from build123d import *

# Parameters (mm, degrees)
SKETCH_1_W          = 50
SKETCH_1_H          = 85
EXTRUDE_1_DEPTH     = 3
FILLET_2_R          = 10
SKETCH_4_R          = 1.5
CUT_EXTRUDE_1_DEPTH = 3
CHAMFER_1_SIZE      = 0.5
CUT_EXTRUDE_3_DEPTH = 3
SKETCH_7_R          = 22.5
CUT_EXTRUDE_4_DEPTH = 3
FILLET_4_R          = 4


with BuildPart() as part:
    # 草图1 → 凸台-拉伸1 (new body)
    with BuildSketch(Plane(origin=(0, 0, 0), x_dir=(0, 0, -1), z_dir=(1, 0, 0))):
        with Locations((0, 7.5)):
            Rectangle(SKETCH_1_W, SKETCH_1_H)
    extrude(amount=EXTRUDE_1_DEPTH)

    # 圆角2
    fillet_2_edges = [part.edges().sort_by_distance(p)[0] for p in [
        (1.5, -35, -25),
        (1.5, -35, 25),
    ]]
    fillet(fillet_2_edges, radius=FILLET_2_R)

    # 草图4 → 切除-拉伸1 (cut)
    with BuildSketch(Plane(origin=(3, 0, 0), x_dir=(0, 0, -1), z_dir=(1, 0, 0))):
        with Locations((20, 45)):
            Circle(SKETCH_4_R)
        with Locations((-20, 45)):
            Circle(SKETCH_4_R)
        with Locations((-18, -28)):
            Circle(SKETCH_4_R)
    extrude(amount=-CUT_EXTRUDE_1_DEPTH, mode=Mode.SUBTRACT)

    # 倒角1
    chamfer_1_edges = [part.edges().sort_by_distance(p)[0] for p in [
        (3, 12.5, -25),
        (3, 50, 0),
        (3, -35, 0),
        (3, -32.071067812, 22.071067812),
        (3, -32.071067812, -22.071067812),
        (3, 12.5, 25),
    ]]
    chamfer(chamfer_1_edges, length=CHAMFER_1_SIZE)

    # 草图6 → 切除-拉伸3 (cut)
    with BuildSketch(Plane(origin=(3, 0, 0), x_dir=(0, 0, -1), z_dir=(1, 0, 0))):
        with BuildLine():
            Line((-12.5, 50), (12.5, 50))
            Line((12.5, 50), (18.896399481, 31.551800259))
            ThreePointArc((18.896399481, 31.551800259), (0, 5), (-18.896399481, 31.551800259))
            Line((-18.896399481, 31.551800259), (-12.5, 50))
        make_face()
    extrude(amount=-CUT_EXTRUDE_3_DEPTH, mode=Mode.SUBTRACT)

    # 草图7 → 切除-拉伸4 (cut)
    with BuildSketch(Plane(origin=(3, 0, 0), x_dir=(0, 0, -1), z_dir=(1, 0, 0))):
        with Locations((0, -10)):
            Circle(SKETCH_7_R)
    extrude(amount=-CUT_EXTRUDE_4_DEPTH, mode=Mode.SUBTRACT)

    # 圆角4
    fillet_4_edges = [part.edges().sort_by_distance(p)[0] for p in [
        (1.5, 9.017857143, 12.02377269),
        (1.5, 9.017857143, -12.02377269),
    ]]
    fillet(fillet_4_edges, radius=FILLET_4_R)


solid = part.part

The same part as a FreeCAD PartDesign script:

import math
import FreeCAD as App
import Part
import Sketcher
from FreeCAD import Vector


def edges_at(feature, points):
    """Names of the edges that pass closest to the given points."""
    edges = feature.Shape.Edges
    near = lambda p: min(range(len(edges)), key=lambda i: edges[i].distToShape(Part.Vertex(*p))[0])
    return sorted({f"Edge{near(p) + 1}" for p in points})


def add_polygon(sketch, points):
    """Adds a closed chain of lines whose ends are joined by coincident constraints."""
    first, n = sketch.GeometryCount, len(points)
    for a, b in zip(points, points[1:] + points[:1]):
        sketch.addGeometry(Part.LineSegment(App.Vector(*a, 0), App.Vector(*b, 0)), False)
    for i in range(n):
        sketch.addConstraint(Sketcher.Constraint("Coincident", first + i, 2, first + (i + 1) % n, 1))

doc = App.newDocument("Part")
body = doc.addObject("PartDesign::Body", "Body")

sketch1 = body.newObject("Sketcher::SketchObject", "Sketch")
sketch1.AttachmentSupport = (doc.getObject("YZ_Plane"), [""])
sketch1.MapMode = "FlatFace"
add_polygon(sketch1, [(50, 25), (-35, 25), (-35, -25), (50, -25)])
sketch1.addConstraint(Sketcher.Constraint("Horizontal", 0))
sketch1.addConstraint(Sketcher.Constraint("Vertical", 1))
sketch1.addConstraint(Sketcher.Constraint("Horizontal", 2))
sketch1.addConstraint(Sketcher.Constraint("Vertical", 3))
sketch1.addConstraint(Sketcher.Constraint("DistanceX", 0, 2, 0, 1, 85.0))
sketch1.addConstraint(Sketcher.Constraint("DistanceY", 1, 2, 1, 1, 50.0))
sketch1.addConstraint(Sketcher.Constraint("DistanceX", 0, 2, -1, 1, 35.0))
sketch1.addConstraint(Sketcher.Constraint("DistanceY", -1, 1, 0, 2, 25.0))
pad1 = body.newObject("PartDesign::Pad", "Pad")
pad1.Profile = sketch1
pad1.Length = 3
doc.recompute()

fillet = body.newObject("PartDesign::Fillet", "Fillet")
fillet.Base = (pad1, edges_at(pad1, [(1.5, -35, -25), (1.5, -35, 25)]))
fillet.Radius = 10

sketch2 = body.newObject("Sketcher::SketchObject", "Sketch001")
sketch2.AttachmentSupport = (doc.getObject("YZ_Plane"), [""])
sketch2.MapMode = "FlatFace"
sketch2.AttachmentOffset = App.Placement(Vector(0, 0, 3), App.Rotation())
sketch2.addGeometry(Part.Circle(Vector(45, -20, 0), Vector(0, 0, 1), 1.5), False)
sketch2.addGeometry(Part.Circle(Vector(45, 20, 0), Vector(0, 0, 1), 1.5), False)
sketch2.addGeometry(Part.Circle(Vector(-28, 18, 0), Vector(0, 0, 1), 1.5), False)
sketch2.addConstraint(Sketcher.Constraint("Equal", 0, 1))
sketch2.addConstraint(Sketcher.Constraint("Equal", 1, 2))
sketch2.addConstraint(Sketcher.Constraint("Symmetric", 0, 3, 1, 3, -1))
sketch2.addConstraint(Sketcher.Constraint("Diameter", 0, 3.0))
sketch2.addConstraint(Sketcher.Constraint("DistanceX", -1, 1, 0, 3, 45.0))
sketch2.addConstraint(Sketcher.Constraint("DistanceY", 0, 3, -1, 1, 20.0))
sketch2.addConstraint(Sketcher.Constraint("DistanceX", 2, 3, -1, 1, 28.0))
sketch2.addConstraint(Sketcher.Constraint("DistanceY", -1, 1, 2, 3, 18.0))
pocket1 = body.newObject("PartDesign::Pocket", "Pocket")
pocket1.Profile = sketch2
pocket1.Length = 3
doc.recompute()

chamfer = body.newObject("PartDesign::Chamfer", "Chamfer")
chamfer.Base = (pocket1, edges_at(pocket1, [
    (3, 12.5, -25),
    (3, 50, 0),
    (3, -35, 0),
    (3, -32.071, 22.071),
    (3, -32.071, -22.071),
    (3, 12.5, 25),
]))
chamfer.Size = 0.5

sketch3 = body.newObject("Sketcher::SketchObject", "Sketch002")
sketch3.AttachmentSupport = (doc.getObject("YZ_Plane"), [""])
sketch3.MapMode = "FlatFace"
sketch3.AttachmentOffset = App.Placement(Vector(0, 0, 3), App.Rotation())
sketch3.addGeometry(Part.LineSegment(Vector(50, -12, 0), Vector(50, 12, 0)), False)
sketch3.addGeometry(Part.LineSegment(Vector(50, 12, 0), Vector(32, 19, 0)), False)
sketch3.addGeometry(Part.ArcOfCircle(Part.Circle(Vector(25, 0, 0), Vector(0, 0, 1), 20), math.radians(71), math.radians(289)), False)
sketch3.addGeometry(Part.LineSegment(Vector(32, -19, 0), Vector(50, -12, 0)), False)
sketch3.addConstraint(Sketcher.Constraint("Coincident", 0, 2, 1, 1))
sketch3.addConstraint(Sketcher.Constraint("Tangent", 1, 2, 2, 1))
sketch3.addConstraint(Sketcher.Constraint("Tangent", 2, 2, 3, 1))
sketch3.addConstraint(Sketcher.Constraint("Coincident", 3, 2, 0, 1))
sketch3.addConstraint(Sketcher.Constraint("Vertical", 0))
sketch3.addConstraint(Sketcher.Constraint("Symmetric", 1, 2, 2, 2, -1))
sketch3.addConstraint(Sketcher.Constraint("Radius", 2, 20.0))
sketch3.addConstraint(Sketcher.Constraint("DistanceY", 0, 1, 0, 2, 25.0))
sketch3.addConstraint(Sketcher.Constraint("DistanceX", -1, 1, 2, 3, 25.0))
sketch3.addConstraint(Sketcher.Constraint("DistanceX", -1, 1, 0, 2, 50.0))
pocket2 = body.newObject("PartDesign::Pocket", "Pocket001")
pocket2.Profile = sketch3
pocket2.Length = 3

sketch4 = body.newObject("Sketcher::SketchObject", "Sketch003")
sketch4.AttachmentSupport = (doc.getObject("YZ_Plane"), [""])
sketch4.MapMode = "FlatFace"
sketch4.AttachmentOffset = App.Placement(Vector(0, 0, 3), App.Rotation())
sketch4.addGeometry(Part.Circle(Vector(-10, 0, 0), Vector(0, 0, 1), 22), False)
sketch4.addConstraint(Sketcher.Constraint("PointOnObject", 0, 3, -1))
sketch4.addConstraint(Sketcher.Constraint("Diameter", 0, 45.0))
sketch4.addConstraint(Sketcher.Constraint("DistanceX", 0, 3, -1, 1, 10.0))
pocket3 = body.newObject("PartDesign::Pocket", "Pocket002")
pocket3.Profile = sketch4
pocket3.Length = 3
doc.recompute()

fillet2 = body.newObject("PartDesign::Fillet", "Fillet001")
fillet2.Base = (pocket3, edges_at(pocket3, [(1.5, 9.018, 12.024), (1.5, 9.018, -12.024)]))
fillet2.Radius = 4

doc.recompute()
